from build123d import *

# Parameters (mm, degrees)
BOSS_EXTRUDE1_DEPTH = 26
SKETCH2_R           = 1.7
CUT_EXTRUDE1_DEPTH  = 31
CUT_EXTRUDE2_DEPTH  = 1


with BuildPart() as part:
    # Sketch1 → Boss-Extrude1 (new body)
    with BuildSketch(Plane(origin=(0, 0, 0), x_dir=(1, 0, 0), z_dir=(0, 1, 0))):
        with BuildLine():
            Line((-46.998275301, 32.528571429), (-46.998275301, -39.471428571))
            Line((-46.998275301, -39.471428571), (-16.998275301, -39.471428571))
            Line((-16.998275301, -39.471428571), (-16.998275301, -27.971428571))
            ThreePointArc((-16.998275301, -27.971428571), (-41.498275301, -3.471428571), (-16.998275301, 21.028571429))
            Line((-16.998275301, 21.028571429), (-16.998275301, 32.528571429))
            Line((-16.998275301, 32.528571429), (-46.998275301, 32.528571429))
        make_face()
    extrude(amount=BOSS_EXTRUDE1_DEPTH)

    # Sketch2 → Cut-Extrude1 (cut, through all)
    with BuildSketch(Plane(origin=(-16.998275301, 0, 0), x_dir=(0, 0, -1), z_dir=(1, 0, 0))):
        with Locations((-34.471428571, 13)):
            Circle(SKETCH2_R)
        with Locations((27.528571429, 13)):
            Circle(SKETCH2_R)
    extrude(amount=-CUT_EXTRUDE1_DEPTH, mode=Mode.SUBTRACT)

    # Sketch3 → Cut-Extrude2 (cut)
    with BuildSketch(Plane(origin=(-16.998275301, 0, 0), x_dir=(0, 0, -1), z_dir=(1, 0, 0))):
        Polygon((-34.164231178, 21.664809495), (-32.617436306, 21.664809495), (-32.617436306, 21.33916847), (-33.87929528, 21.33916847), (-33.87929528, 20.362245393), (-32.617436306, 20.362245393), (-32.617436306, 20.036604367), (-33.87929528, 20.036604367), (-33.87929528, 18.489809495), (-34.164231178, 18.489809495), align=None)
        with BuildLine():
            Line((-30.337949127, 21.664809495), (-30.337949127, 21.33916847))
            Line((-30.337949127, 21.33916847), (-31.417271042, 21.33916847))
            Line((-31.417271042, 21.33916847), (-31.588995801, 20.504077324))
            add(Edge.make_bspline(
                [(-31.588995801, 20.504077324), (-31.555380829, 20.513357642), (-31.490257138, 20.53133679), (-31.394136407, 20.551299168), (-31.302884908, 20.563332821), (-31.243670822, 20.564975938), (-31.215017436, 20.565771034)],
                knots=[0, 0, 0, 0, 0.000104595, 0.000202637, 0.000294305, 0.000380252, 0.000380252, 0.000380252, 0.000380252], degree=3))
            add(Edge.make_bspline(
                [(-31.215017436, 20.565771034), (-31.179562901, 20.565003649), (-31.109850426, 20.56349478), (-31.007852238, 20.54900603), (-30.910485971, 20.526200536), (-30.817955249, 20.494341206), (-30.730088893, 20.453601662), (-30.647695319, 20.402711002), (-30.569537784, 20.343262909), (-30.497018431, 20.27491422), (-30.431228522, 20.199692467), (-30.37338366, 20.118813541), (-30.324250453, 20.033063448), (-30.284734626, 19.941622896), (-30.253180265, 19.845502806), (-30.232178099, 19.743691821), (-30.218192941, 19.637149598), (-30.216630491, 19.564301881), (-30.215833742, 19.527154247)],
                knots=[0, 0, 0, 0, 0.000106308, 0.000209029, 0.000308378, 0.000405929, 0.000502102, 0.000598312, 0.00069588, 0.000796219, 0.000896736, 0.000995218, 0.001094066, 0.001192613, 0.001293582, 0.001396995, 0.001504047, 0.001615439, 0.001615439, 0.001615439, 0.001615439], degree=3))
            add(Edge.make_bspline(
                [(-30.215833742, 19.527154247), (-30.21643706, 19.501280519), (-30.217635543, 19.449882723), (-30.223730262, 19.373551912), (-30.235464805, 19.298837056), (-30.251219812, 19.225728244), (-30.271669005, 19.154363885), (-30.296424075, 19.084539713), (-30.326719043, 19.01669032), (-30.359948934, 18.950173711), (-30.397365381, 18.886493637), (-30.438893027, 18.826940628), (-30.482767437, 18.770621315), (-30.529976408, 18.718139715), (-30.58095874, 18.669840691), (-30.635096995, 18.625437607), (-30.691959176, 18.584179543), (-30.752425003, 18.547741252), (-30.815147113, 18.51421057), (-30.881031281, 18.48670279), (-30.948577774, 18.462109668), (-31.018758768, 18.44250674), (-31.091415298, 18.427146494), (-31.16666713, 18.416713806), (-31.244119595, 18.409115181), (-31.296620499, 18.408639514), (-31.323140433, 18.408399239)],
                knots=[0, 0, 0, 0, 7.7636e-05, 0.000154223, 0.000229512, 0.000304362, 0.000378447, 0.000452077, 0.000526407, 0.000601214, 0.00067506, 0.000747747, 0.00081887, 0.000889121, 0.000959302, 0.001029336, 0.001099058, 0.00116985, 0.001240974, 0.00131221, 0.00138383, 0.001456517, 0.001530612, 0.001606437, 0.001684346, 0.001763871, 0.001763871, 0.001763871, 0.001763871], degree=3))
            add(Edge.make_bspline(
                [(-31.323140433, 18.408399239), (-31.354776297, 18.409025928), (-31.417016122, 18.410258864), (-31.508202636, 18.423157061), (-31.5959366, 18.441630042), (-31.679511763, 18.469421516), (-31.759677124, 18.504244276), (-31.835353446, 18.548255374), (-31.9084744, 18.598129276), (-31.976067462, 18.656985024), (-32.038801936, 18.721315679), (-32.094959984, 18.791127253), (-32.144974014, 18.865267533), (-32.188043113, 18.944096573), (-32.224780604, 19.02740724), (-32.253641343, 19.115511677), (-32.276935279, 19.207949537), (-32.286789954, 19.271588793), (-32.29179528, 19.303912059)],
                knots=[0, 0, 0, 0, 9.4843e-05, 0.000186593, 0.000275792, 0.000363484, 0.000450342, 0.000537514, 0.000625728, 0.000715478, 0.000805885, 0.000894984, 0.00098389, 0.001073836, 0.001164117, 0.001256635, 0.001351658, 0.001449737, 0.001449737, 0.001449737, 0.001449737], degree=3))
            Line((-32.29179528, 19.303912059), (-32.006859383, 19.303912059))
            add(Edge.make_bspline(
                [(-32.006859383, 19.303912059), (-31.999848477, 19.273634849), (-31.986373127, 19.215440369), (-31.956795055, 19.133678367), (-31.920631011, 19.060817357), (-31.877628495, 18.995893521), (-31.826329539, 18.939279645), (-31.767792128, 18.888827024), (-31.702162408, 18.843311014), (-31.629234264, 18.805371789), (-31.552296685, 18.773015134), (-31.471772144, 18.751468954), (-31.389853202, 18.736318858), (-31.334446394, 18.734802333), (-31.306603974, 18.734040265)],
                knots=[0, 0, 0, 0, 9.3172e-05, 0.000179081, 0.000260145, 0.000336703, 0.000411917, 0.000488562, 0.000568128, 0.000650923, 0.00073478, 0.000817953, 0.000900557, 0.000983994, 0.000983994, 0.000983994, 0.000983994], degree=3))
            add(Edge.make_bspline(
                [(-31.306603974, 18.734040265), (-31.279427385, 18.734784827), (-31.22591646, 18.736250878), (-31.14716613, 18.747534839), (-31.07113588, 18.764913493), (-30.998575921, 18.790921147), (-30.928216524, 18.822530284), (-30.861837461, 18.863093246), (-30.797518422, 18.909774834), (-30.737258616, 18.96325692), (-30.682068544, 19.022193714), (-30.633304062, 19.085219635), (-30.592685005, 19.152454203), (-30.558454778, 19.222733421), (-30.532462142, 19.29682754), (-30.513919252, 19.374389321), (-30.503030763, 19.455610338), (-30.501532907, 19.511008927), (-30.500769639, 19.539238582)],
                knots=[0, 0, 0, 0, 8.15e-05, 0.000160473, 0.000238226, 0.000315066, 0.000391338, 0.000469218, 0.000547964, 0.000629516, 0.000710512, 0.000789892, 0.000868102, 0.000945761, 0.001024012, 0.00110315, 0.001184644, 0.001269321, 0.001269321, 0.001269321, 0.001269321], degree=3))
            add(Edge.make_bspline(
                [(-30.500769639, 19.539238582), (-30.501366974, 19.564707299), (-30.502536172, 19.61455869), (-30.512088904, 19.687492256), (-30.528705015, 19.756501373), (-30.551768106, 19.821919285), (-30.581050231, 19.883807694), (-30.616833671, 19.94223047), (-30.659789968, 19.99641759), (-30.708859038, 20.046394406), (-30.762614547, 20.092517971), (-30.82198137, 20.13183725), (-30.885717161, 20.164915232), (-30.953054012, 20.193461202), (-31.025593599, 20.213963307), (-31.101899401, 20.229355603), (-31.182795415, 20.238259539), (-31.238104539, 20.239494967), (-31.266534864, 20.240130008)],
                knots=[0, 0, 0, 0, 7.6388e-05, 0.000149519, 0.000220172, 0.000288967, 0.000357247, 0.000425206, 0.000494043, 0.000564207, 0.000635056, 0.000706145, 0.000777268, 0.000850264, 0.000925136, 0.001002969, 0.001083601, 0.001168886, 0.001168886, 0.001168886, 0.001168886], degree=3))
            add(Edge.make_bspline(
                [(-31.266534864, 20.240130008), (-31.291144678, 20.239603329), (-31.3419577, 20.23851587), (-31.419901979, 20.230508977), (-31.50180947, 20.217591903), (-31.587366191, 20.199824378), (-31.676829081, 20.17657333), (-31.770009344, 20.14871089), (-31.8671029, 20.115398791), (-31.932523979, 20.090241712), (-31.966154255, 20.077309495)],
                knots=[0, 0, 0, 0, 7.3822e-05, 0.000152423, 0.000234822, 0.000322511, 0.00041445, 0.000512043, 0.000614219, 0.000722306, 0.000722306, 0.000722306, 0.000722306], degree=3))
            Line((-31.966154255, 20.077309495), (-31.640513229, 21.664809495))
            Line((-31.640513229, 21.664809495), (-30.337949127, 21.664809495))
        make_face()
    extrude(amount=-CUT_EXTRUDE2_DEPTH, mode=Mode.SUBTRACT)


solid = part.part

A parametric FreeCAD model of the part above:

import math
import FreeCAD as App
import Part
import Sketcher
Q = App.Units.Quantity


def add_polygon(sketch, points):
    """Adds a closed chain of lines whose ends are joined by coincident constraints."""
    first, n = sketch.GeometryCount, len(points)
    for a, b in zip(points, points[1:] + points[:1]):
        sketch.addGeometry(Part.LineSegment(App.Vector(*a, 0), App.Vector(*b, 0)), False)
    for i in range(n):
        sketch.addConstraint(Sketcher.Constraint("Coincident", first + i, 2, first + (i + 1) % n, 1))

doc = App.newDocument("Part")
params = doc.addObject("Spreadsheet::Sheet", "Params")
for row, (alias, value) in enumerate([
    ("sketch1_radius", "24.5 mm"),
    ("sketch1_width", "30 mm"),
    ("sketch1_height", "72 mm"),
    ("pad1_length", "26 mm"),
    ("sketch2_diameter", "3.4 mm"),
    ("pocket2_length", "1 mm"),
], start=1):
    params.set(f"A{row}", alias)
    params.set(f"B{row}", "=" + value)
    params.setAlias(f"B{row}", alias)

body = doc.addObject("PartDesign::Body", "Body")

# Sketch on XZ plane
sketch1 = body.newObject("Sketcher::SketchObject", "Sketch")
sketch1.AttachmentSupport = (doc.getObject("XZ_Plane"), [""])
sketch1.MapMode = "FlatFace"
sketch1.addGeometry([
    Part.LineSegment(App.Vector(-46.998275, -32.528571, 0), App.Vector(-46.998275, 39.471429, 0)),  # 0
    Part.LineSegment(App.Vector(-46.998275, 39.471429, 0), App.Vector(-16.998275, 39.471429, 0)),  # 1
    Part.LineSegment(App.Vector(-16.998275, 39.471429, 0), App.Vector(-16.998275, 27.971429, 0)),  # 2
    Part.ArcOfCircle(Part.Circle(App.Vector(-16.998275, 3.471429, 0), App.Vector(0, 0, 1), 24.5), math.radians(90), math.radians(270)),  # 3
    Part.LineSegment(App.Vector(-16.998275, -21.028571, 0), App.Vector(-16.998275, -32.528571, 0)),  # 4
    Part.LineSegment(App.Vector(-16.998275, -32.528571, 0), App.Vector(-46.998275, -32.528571, 0)),  # 5
], False)
sketch1.addConstraint([
    Sketcher.Constraint("Coincident", 0, 2, 1, 1),
    Sketcher.Constraint("Coincident", 1, 2, 2, 1),
    Sketcher.Constraint("Coincident", 2, 2, 3, 1),
    Sketcher.Constraint("Coincident", 3, 2, 4, 1),
    Sketcher.Constraint("Coincident", 4, 2, 5, 1),
    Sketcher.Constraint("Coincident", 5, 2, 0, 1),
    Sketcher.Constraint("Vertical", 0),
    Sketcher.Constraint("Horizontal", 1),
    Sketcher.Constraint("Vertical", 2),
    Sketcher.Constraint("Vertical", 4),
    Sketcher.Constraint("Horizontal", 5),
    Sketcher.Constraint("Vertical", 3, 3, 1, 2),
    Sketcher.Constraint("Vertical", 2, 2, 3, 2),
    Sketcher.Constraint("Equal", 2, 4),
    Sketcher.Constraint("Radius", 3, Q("24.5 mm")),
    Sketcher.Constraint("DistanceX", 1, 1, 1, 2, Q("30 mm")),
    Sketcher.Constraint("DistanceY", 0, 1, 0, 2, Q("72 mm")),
    Sketcher.Constraint("DistanceY", -1, 1, 3, 3, Q("3.471429 mm")),
    Sketcher.Constraint("DistanceX", 3, 3, -1, 1, Q("16.998275 mm")),
])
sketch1.setExpression("Constraints[14]", "Params.sketch1_radius")
sketch1.setExpression("Constraints[15]", "Params.sketch1_width")
sketch1.setExpression("Constraints[16]", "Params.sketch1_height")
pad1 = body.newObject("PartDesign::Pad", "Pad")
pad1.Profile = sketch1
pad1.setExpression("Length", "Params.pad1_length")
pad1.Reversed = True

# Sketch on YZ plane
sketch2 = body.newObject("Sketcher::SketchObject", "Sketch001")
sketch2.AttachmentSupport = (doc.getObject("YZ_Plane"), [""])
sketch2.MapMode = "FlatFace"
sketch2.AttachmentOffset = App.Placement(App.Vector(0, 0, -16.998275), App.Rotation())
sketch2.addGeometry([
    Part.Circle(App.Vector(13, 34.471429, 0), App.Vector(0, 0, 1), 1.7),
    Part.Circle(App.Vector(13, -27.528571, 0), App.Vector(0, 0, 1), 1.7),
], False)
sketch2.addConstraint([
    Sketcher.Constraint("Equal", 0, 1),
    Sketcher.Constraint("Vertical", 0, 3, 1, 3),
    Sketcher.Constraint("Diameter", 0, Q("3.4 mm")),
    Sketcher.Constraint("DistanceX", -1, 1, 0, 3, Q("13 mm")),
    Sketcher.Constraint("DistanceY", 1, 3, 0, 3, Q("62 mm")),
    Sketcher.Constraint("DistanceY", -1, 1, 0, 3, Q("34.471429 mm")),
])
sketch2.setExpression("Constraints[2]", "Params.sketch2_diameter")
pocket1 = body.newObject("PartDesign::Pocket", "Pocket")
pocket1.Profile = sketch2
pocket1.Type = "ThroughAll"

# Sketch on YZ plane
sketch3 = body.newObject("Sketcher::SketchObject", "Sketch002")
sketch3.AttachmentSupport = (doc.getObject("YZ_Plane"), [""])
sketch3.MapMode = "FlatFace"
sketch3.AttachmentOffset = App.Placement(App.Vector(0, 0, -16.998275), App.Rotation())
add_polygon(sketch3, [(21.664809, 32.617436), (21.664809, 34.164231), (18.489809, 34.164231), (18.489809, 33.879295), (20.036604, 33.879295), (20.036604, 32.617436), (20.362245, 32.617436), (20.362245, 33.879295), (21.339168, 33.879295), (21.339168, 32.617436)])  # lines 0-9
sketch3.addGeometry(Part.LineSegment(App.Vector(21.339168, 30.337949, 0), App.Vector(21.664809, 30.337949, 0)), False)  # 10
sketch3.addGeometry(Part.LineSegment(App.Vector(21.664809, 30.337949, 0), App.Vector(21.664809, 31.640513, 0)), False)  # 11
sketch3.addGeometry(Part.LineSegment(App.Vector(21.664809, 31.640513, 0), App.Vector(20.077309, 31.966154, 0)), False)  # 12
sketch3.addGeometry(Part.BSplineCurve([App.Vector(20.24013, 31.266535, 0), App.Vector(20.239603, 31.291145, 0), App.Vector(20.238516, 31.341958, 0), App.Vector(20.230509, 31.419902, 0), App.Vector(20.217592, 31.501809, 0), App.Vector(20.199824, 31.587366, 0), App.Vector(20.176573, 31.676829, 0), App.Vector(20.148711, 31.770009, 0), App.Vector(20.115399, 31.867103, 0), App.Vector(20.090242, 31.932524, 0), App.Vector(20.077309, 31.966154, 0)], [4, 1, 1, 1, 1, 1, 1, 1, 4], [0, 0.000073822, 0.000152423, 0.000234822, 0.000322511, 0.00041445, 0.000512043, 0.000614219, 0.000722306], False, 3, [1, 1, 1, 1, 1, 1, 1, 1, 1, 1, 1], False), False)  # 13
sketch3.addGeometry(Part.BSplineCurve([App.Vector(19.539239, 30.50077, 0), App.Vector(19.564707, 30.501367, 0), App.Vector(19.614559, 30.502536, 0), App.Vector(19.687492, 30.512089, 0), App.Vector(19.756501, 30.528705, 0), App.Vector(19.821919, 30.551768, 0), App.Vector(19.883808, 30.58105, 0), App.Vector(19.94223, 30.616834, 0), App.Vector(19.996418, 30.65979, 0), App.Vector(20.046394, 30.708859, 0), App.Vector(20.092518, 30.762615, 0), App.Vector(20.131837, 30.821981, 0), App.Vector(20.164915, 30.885717, 0), App.Vector(20.193461, 30.953054, 0), App.Vector(20.213963, 31.025594, 0), App.Vector(20.229356, 31.101899, 0), App.Vector(20.23826, 31.182795, 0), App.Vector(20.239495, 31.238105, 0), App.Vector(20.24013, 31.266535, 0)], [4, 1, 1, 1, 1, 1, 1, 1, 1, 1, 1, 1, 1, 1, 1, 1, 4], [0, 0.000076388, 0.000149519, 0.000220172, 0.000288967, 0.000357247, 0.000425206, 0.000494043, 0.000564207, 0.000635056, 0.000706145, 0.000777268, 0.000850264, 0.000925136, 0.001002969, 0.001083601, 0.001168886], False, 3, [1, 1, 1, 1, 1, 1, 1, 1, 1, 1, 1, 1, 1, 1, 1, 1, 1, 1, 1], False), False)  # 14
sketch3.addGeometry(Part.BSplineCurve([App.Vector(18.73404, 31.306604, 0), App.Vector(18.734785, 31.279427, 0), App.Vector(18.736251, 31.225916, 0), App.Vector(18.747535, 31.147166, 0), App.Vector(18.764913, 31.071136, 0), App.Vector(18.790921, 30.998576, 0), App.Vector(18.82253, 30.928217, 0), App.Vector(18.863093, 30.861837, 0), App.Vector(18.909775, 30.797518, 0), App.Vector(18.963257, 30.737259, 0), App.Vector(19.022194, 30.682069, 0), App.Vector(19.08522, 30.633304, 0), App.Vector(19.152454, 30.592685, 0), App.Vector(19.222733, 30.558455, 0), App.Vector(19.296828, 30.532462, 0), App.Vector(19.374389, 30.513919, 0), App.Vector(19.45561, 30.503031, 0), App.Vector(19.511009, 30.501533, 0), App.Vector(19.539239, 30.50077, 0)], [4, 1, 1, 1, 1, 1, 1, 1, 1, 1, 1, 1, 1, 1, 1, 1, 4], [0, 0.0000815, 0.000160473, 0.000238226, 0.000315066, 0.000391338, 0.000469218, 0.000547964, 0.000629516, 0.000710512, 0.000789892, 0.000868102, 0.000945761, 0.001024012, 0.00110315, 0.001184644, 0.001269321], False, 3, [1, 1, 1, 1, 1, 1, 1, 1, 1, 1, 1, 1, 1, 1, 1, 1, 1, 1, 1], False), False)  # 15
sketch3.addGeometry(Part.BSplineCurve([App.Vector(19.303912, 32.006859, 0), App.Vector(19.273635, 31.999848, 0), App.Vector(19.21544, 31.986373, 0), App.Vector(19.133678, 31.956795, 0), App.Vector(19.060817, 31.920631, 0), App.Vector(18.995894, 31.877628, 0), App.Vector(18.93928, 31.82633, 0), App.Vector(18.888827, 31.767792, 0), App.Vector(18.843311, 31.702162, 0), App.Vector(18.805372, 31.629234, 0), App.Vector(18.773015, 31.552297, 0), App.Vector(18.751469, 31.471772, 0), App.Vector(18.736319, 31.389853, 0), App.Vector(18.734802, 31.334446, 0), App.Vector(18.73404, 31.306604, 0)], [4, 1, 1, 1, 1, 1, 1, 1, 1, 1, 1, 1, 4], [0, 0.000093172, 0.000179081, 0.000260145, 0.000336703, 0.000411917, 0.000488562, 0.000568128, 0.000650923, 0.00073478, 0.000817953, 0.000900557, 0.000983994], False, 3, [1, 1, 1, 1, 1, 1, 1, 1, 1, 1, 1, 1, 1, 1, 1], False), False)  # 16
sketch3.addGeometry(Part.LineSegment(App.Vector(19.303912, 32.006859, 0), App.Vector(19.303912, 32.291795, 0)), False)  # 17
sketch3.addGeometry(Part.BSplineCurve([App.Vector(18.408399, 31.32314, 0), App.Vector(18.409026, 31.354776, 0), App.Vector(18.410259, 31.417016, 0), App.Vector(18.423157, 31.508203, 0), App.Vector(18.44163, 31.595937, 0), App.Vector(18.469422, 31.679512, 0), App.Vector(18.504244, 31.759677, 0), App.Vector(18.548255, 31.835353, 0), App.Vector(18.598129, 31.908474, 0), App.Vector(18.656985, 31.976067, 0), App.Vector(18.721316, 32.038802, 0), App.Vector(18.791127, 32.09496, 0), App.Vector(18.865268, 32.144974, 0), App.Vector(18.944097, 32.188043, 0), App.Vector(19.027407, 32.224781, 0), App.Vector(19.115512, 32.253641, 0), App.Vector(19.20795, 32.276935, 0), App.Vector(19.271589, 32.28679, 0), App.Vector(19.303912, 32.291795, 0)], [4, 1, 1, 1, 1, 1, 1, 1, 1, 1, 1, 1, 1, 1, 1, 1, 4], [0, 0.000094843, 0.000186593, 0.000275792, 0.000363484, 0.000450342, 0.000537514, 0.000625728, 0.000715478, 0.000805885, 0.000894984, 0.00098389, 0.001073836, 0.001164117, 0.001256635, 0.001351658, 0.001449737], False, 3, [1, 1, 1, 1, 1, 1, 1, 1, 1, 1, 1, 1, 1, 1, 1, 1, 1, 1, 1], False), False)  # 18
sketch3.addGeometry(Part.BSplineCurve([App.Vector(19.527154, 30.215834, 0), App.Vector(19.501281, 30.216437, 0), App.Vector(19.449883, 30.217636, 0), App.Vector(19.373552, 30.22373, 0), App.Vector(19.298837, 30.235465, 0), App.Vector(19.225728, 30.25122, 0), App.Vector(19.154364, 30.271669, 0), App.Vector(19.08454, 30.296424, 0), App.Vector(19.01669, 30.326719, 0), App.Vector(18.950174, 30.359949, 0), App.Vector(18.886494, 30.397365, 0), App.Vector(18.826941, 30.438893, 0), App.Vector(18.770621, 30.482767, 0), App.Vector(18.71814, 30.529976, 0), App.Vector(18.669841, 30.580959, 0), App.Vector(18.625438, 30.635097, 0), App.Vector(18.58418, 30.691959, 0), App.Vector(18.547741, 30.752425, 0), App.Vector(18.514211, 30.815147, 0), App.Vector(18.486703, 30.881031, 0), App.Vector(18.46211, 30.948578, 0), App.Vector(18.442507, 31.018759, 0), App.Vector(18.427146, 31.091415, 0), App.Vector(18.416714, 31.166667, 0), App.Vector(18.409115, 31.24412, 0), App.Vector(18.40864, 31.29662, 0), App.Vector(18.408399, 31.32314, 0)], [4, 1, 1, 1, 1, 1, 1, 1, 1, 1, 1, 1, 1, 1, 1, 1, 1, 1, 1, 1, 1, 1, 1, 1, 4], [0, 0.000077636, 0.000154223, 0.000229512, 0.000304362, 0.000378447, 0.000452077, 0.000526407, 0.000601214, 0.00067506, 0.000747747, 0.00081887, 0.000889121, 0.000959302, 0.001029336, 0.001099058, 0.00116985, 0.001240974, 0.00131221, 0.00138383, 0.001456517, 0.001530612, 0.001606437, 0.001684346, 0.001763871], False, 3, [1, 1, 1, 1, 1, 1, 1, 1, 1, 1, 1, 1, 1, 1, 1, 1, 1, 1, 1, 1, 1, 1, 1, 1, 1, 1, 1], False), False)  # 19
sketch3.addGeometry(Part.BSplineCurve([App.Vector(20.565771, 31.215017, 0), App.Vector(20.565004, 31.179563, 0), App.Vector(20.563495, 31.10985, 0), App.Vector(20.549006, 31.007852, 0), App.Vector(20.526201, 30.910486, 0), App.Vector(20.494341, 30.817955, 0), App.Vector(20.453602, 30.730089, 0), App.Vector(20.402711, 30.647695, 0), App.Vector(20.343263, 30.569538, 0), App.Vector(20.274914, 30.497018, 0), App.Vector(20.199692, 30.431229, 0), App.Vector(20.118814, 30.373384, 0), App.Vector(20.033063, 30.32425, 0), App.Vector(19.941623, 30.284735, 0), App.Vector(19.845503, 30.25318, 0), App.Vector(19.743692, 30.232178, 0), App.Vector(19.63715, 30.218193, 0), App.Vector(19.564302, 30.21663, 0), App.Vector(19.527154, 30.215834, 0)], [4, 1, 1, 1, 1, 1, 1, 1, 1, 1, 1, 1, 1, 1, 1, 1, 4], [0, 0.000106308, 0.000209029, 0.000308378, 0.000405929, 0.000502102, 0.000598312, 0.00069588, 0.000796219, 0.000896736, 0.000995218, 0.001094066, 0.001192613, 0.001293582, 0.001396995, 0.001504047, 0.001615439], False, 3, [1, 1, 1, 1, 1, 1, 1, 1, 1, 1, 1, 1, 1, 1, 1, 1, 1, 1, 1], False), False)  # 20
sketch3.addGeometry(Part.BSplineCurve([App.Vector(20.504077, 31.588996, 0), App.Vector(20.513358, 31.555381, 0), App.Vector(20.531337, 31.490257, 0), App.Vector(20.551299, 31.394136, 0), App.Vector(20.563333, 31.302885, 0), App.Vector(20.564976, 31.243671, 0), App.Vector(20.565771, 31.215017, 0)], [4, 1, 1, 1, 4], [0, 0.000104595, 0.000202637, 0.000294305, 0.000380252], False, 3, [1, 1, 1, 1, 1, 1, 1], False), False)  # 21
sketch3.addGeometry(Part.LineSegment(App.Vector(20.504077, 31.588996, 0), App.Vector(21.339168, 31.417271, 0)), False)  # 22
sketch3.addGeometry(Part.LineSegment(App.Vector(21.339168, 31.417271, 0), App.Vector(21.339168, 30.337949, 0)), False)  # 23
sketch3.addConstraint([
    Sketcher.Constraint("Block", 13),
    Sketcher.Constraint("Block", 14),
    Sketcher.Constraint("Block", 15),
    Sketcher.Constraint("Block", 16),
    Sketcher.Constraint("Block", 18),
    Sketcher.Constraint("Block", 19),
    Sketcher.Constraint("Block", 20),
    Sketcher.Constraint("Block", 21),
    Sketcher.Constraint("Coincident", 10, 2, 11, 1),
    Sketcher.Constraint("Coincident", 11, 2, 12, 1),
    Sketcher.Constraint("Coincident", 12, 2, 13, 2),
    Sketcher.Constraint("Coincident", 16, 1, 17, 1),
    Sketcher.Constraint("Coincident", 17, 2, 18, 2),
    Sketcher.Constraint("Coincident", 21, 1, 22, 1),
    Sketcher.Constraint("Coincident", 22, 2, 23, 1),
    Sketcher.Constraint("Coincident", 23, 2, 10, 1),
    Sketcher.Constraint("Vertical", 0),
    Sketcher.Constraint("Horizontal", 1),
    Sketcher.Constraint("Vertical", 2),
    Sketcher.Constraint("Horizontal", 3),
    Sketcher.Constraint("Vertical", 4),
    Sketcher.Constraint("Horizontal", 5),
    Sketcher.Constraint("Vertical", 6),
    Sketcher.Constraint("Horizontal", 7),
    Sketcher.Constraint("Vertical", 8),
    Sketcher.Constraint("Horizontal", 9),
    Sketcher.Constraint("Horizontal", 10),
    Sketcher.Constraint("Vertical", 11),
    Sketcher.Constraint("Vertical", 23),
    Sketcher.Constraint("DistanceX", 1, 2, 1, 1, Q("3.175 mm")),
    Sketcher.Constraint("DistanceX", 5, 1, 5, 2, Q("0.325641 mm")),
    Sketcher.Constraint("DistanceX", 9, 1, 9, 2, Q("0.325641 mm")),
    Sketcher.Constraint("DistanceX", 10, 1, 10, 2, Q("0.325641 mm")),
    Sketcher.Constraint("DistanceY", 4, 2, 4, 1, Q("1.261859 mm")),
    Sketcher.Constraint("DistanceY", 6, 1, 6, 2, Q("1.261859 mm")),
    Sketcher.Constraint("DistanceY", 8, 2, 8, 1, Q("1.261859 mm")),
    Sketcher.Constraint("DistanceY", 23, 2, 23, 1, Q("1.079322 mm")),
    Sketcher.Constraint("DistanceX", 12, 2, 11, 2, Q("1.5875 mm")),
    Sketcher.Constraint("DistanceX", 12, 2, 9, 2, Q("1.5875 mm")),
    Sketcher.Constraint("DistanceY", 17, 2, 3, 2, Q("1.5875 mm")),
    Sketcher.Constraint("DistanceX", 3, 1, 3, 2, Q("1.546795 mm")),
    Sketcher.Constraint("DistanceY", 0, 1, 0, 2, Q("1.546795 mm")),
    Sketcher.Constraint("DistanceY", 11, 1, 11, 2, Q("1.302564 mm")),
    Sketcher.Constraint("DistanceY", -1, 1, 10, 2, Q("30.337949 mm")),
])
pocket2 = body.newObject("PartDesign::Pocket", "Pocket001")
pocket2.Profile = sketch3
pocket2.setExpression("Length", "Params.pocket2_length")

doc.recompute()
